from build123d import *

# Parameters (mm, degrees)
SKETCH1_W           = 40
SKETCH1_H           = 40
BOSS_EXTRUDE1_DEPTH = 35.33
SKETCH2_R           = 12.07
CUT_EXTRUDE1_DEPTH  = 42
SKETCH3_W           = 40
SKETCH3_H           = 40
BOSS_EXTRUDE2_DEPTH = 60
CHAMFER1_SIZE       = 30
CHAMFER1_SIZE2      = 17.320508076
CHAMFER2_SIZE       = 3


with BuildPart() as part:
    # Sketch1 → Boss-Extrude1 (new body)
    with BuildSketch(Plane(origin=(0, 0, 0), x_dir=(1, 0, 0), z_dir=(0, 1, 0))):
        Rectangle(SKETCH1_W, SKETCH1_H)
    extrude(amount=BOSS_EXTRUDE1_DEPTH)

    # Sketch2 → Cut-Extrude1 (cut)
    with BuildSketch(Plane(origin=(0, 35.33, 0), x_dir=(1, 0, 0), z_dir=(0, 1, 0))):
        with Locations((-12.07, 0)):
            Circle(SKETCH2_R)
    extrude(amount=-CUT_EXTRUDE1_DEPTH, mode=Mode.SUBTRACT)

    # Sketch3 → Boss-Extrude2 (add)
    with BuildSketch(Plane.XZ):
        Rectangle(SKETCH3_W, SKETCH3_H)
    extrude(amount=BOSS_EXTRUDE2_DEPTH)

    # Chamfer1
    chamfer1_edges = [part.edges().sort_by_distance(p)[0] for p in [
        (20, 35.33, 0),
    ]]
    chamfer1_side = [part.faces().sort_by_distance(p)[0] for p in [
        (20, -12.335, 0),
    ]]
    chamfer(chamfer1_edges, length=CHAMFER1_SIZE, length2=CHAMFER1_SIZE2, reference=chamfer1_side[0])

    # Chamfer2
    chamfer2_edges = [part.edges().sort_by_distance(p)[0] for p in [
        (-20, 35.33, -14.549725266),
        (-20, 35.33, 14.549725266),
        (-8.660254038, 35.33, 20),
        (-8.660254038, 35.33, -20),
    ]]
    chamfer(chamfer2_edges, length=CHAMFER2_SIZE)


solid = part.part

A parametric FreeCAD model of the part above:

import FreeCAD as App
import Part
import Sketcher

V = App.Vector


def edges_at(feature, points):
    """Names of the edges that pass closest to the given points."""
    edges = feature.Shape.Edges
    near = lambda p: min(range(len(edges)), key=lambda i: edges[i].distToShape(Part.Vertex(*p))[0])
    return sorted({f"Edge{near(p) + 1}" for p in points})


def add_polygon(sketch, points):
    """Adds a closed chain of lines whose ends are joined by coincident constraints."""
    first, n = sketch.GeometryCount, len(points)
    for a, b in zip(points, points[1:] + points[:1]):
        sketch.addGeometry(Part.LineSegment(App.Vector(*a, 0), App.Vector(*b, 0)), False)
    for i in range(n):
        sketch.addConstraint(Sketcher.Constraint("Coincident", first + i, 2, first + (i + 1) % n, 1))

doc = App.newDocument("Part")
params = doc.addObject("Spreadsheet::Sheet", "Params")
for row, (alias, value) in enumerate([
    ("sketch1_width", "40 mm"),
    ("pad1_length", "35.33 mm"),
    ("sketch2_diameter", "24.14 mm"),
    ("pocket1_length", "42 mm"),
    ("sketch3_width", "40 mm"),
    ("pad2_length", "60 mm"),
    ("chamfer_size", "30 mm"),
    ("chamfer_size2", "17.320508 mm"),
    ("chamfer2_size", "3 mm"),
], start=1):
    params.set(f"A{row}", alias)
    params.set(f"B{row}", "=" + value)
    params.setAlias(f"B{row}", alias)

body = doc.addObject("PartDesign::Body", "Body")

# Sketch on XZ plane
sketch1 = body.newObject("Sketcher::SketchObject", "Sketch")
sketch1.AttachmentSupport = (doc.getObject("XZ_Plane"), [""])
sketch1.MapMode = "FlatFace"
add_polygon(sketch1, [(-20, -20), (-20, 20), (20, 20), (20, -20)])  # lines 0-3
sketch1.addConstraint([
    Sketcher.Constraint("Vertical", 0),
    Sketcher.Constraint("Horizontal", 1),
    Sketcher.Constraint("Vertical", 2),
    Sketcher.Constraint("Horizontal", 3),
    Sketcher.Constraint("Symmetric", 0, 2, 2, 2, -1, 1),
    Sketcher.Constraint("Equal", 3, 0),
    Sketcher.Constraint("DistanceX", 1, 1, 1, 2, 40.0),
])
sketch1.setExpression("Constraints[10]", "Params.sketch1_width")
pad1 = body.newObject("PartDesign::Pad", "Pad")
pad1.Profile = sketch1
pad1.setExpression("Length", "Params.pad1_length")
pad1.Reversed = True

# Sketch on XZ plane
sketch2 = body.newObject("Sketcher::SketchObject", "Sketch001")
sketch2.AttachmentSupport = (doc.getObject("XZ_Plane"), [""])
sketch2.MapMode = "FlatFace"
sketch2.AttachmentOffset = App.Placement(V(0, 0, -35.33), App.Rotation())
sketch2.addGeometry(Part.Circle(V(-12, 0, 0), V(0, 0, 1), 12), False)
sketch2.addConstraint([
    Sketcher.Constraint("PointOnObject", 0, 3, -1),
    Sketcher.Constraint("Diameter", 0, 24.14),
    Sketcher.Constraint("DistanceX", 0, 3, -1, 1, 12.07),
])
sketch2.setExpression("Constraints[1]", "Params.sketch2_diameter")
pocket1 = body.newObject("PartDesign::Pocket", "Pocket")
pocket1.Profile = sketch2
pocket1.setExpression("Length", "Params.pocket1_length")
pocket1.Reversed = True

# Sketch on XZ plane
sketch3 = body.newObject("Sketcher::SketchObject", "Sketch002")
sketch3.AttachmentSupport = (doc.getObject("XZ_Plane"), [""])
sketch3.MapMode = "FlatFace"
add_polygon(sketch3, [(-20, 20), (-20, -20), (20, -20), (20, 20)])  # lines 0-3
sketch3.addConstraint([
    Sketcher.Constraint("Vertical", 0),
    Sketcher.Constraint("Horizontal", 1),
    Sketcher.Constraint("Vertical", 2),
    Sketcher.Constraint("Horizontal", 3),
    Sketcher.Constraint("Symmetric", 0, 2, 2, 2, -1, 1),
    Sketcher.Constraint("Equal", 3, 0),
    Sketcher.Constraint("DistanceX", 1, 1, 1, 2, 40.0),
])
sketch3.setExpression("Constraints[10]", "Params.sketch3_width")
pad2 = body.newObject("PartDesign::Pad", "Pad001")
pad2.Profile = sketch3
pad2.setExpression("Length", "Params.pad2_length")
doc.recompute()

chamfer = body.newObject("PartDesign::Chamfer", "Chamfer")
chamfer.Base = (pad2, edges_at(pad2, [(20, 35.33, 0)]))
chamfer.ChamferType = "Two distances"
chamfer.setExpression("Size", "Params.chamfer_size")
chamfer.setExpression("Size2", "Params.chamfer_size2")
chamfer.FlipDirection = True
doc.recompute()

chamfer2 = body.newObject("PartDesign::Chamfer", "Chamfer001")
chamfer2.Base = (chamfer, edges_at(chamfer, [
    (-20, 35.33, -14.55),
    (-20, 35.33, 14.55),
    (-8.66, 35.33, 20),
    (-8.66, 35.33, -20),
]))
chamfer2.setExpression("Size", "Params.chamfer2_size")

doc.recompute()
